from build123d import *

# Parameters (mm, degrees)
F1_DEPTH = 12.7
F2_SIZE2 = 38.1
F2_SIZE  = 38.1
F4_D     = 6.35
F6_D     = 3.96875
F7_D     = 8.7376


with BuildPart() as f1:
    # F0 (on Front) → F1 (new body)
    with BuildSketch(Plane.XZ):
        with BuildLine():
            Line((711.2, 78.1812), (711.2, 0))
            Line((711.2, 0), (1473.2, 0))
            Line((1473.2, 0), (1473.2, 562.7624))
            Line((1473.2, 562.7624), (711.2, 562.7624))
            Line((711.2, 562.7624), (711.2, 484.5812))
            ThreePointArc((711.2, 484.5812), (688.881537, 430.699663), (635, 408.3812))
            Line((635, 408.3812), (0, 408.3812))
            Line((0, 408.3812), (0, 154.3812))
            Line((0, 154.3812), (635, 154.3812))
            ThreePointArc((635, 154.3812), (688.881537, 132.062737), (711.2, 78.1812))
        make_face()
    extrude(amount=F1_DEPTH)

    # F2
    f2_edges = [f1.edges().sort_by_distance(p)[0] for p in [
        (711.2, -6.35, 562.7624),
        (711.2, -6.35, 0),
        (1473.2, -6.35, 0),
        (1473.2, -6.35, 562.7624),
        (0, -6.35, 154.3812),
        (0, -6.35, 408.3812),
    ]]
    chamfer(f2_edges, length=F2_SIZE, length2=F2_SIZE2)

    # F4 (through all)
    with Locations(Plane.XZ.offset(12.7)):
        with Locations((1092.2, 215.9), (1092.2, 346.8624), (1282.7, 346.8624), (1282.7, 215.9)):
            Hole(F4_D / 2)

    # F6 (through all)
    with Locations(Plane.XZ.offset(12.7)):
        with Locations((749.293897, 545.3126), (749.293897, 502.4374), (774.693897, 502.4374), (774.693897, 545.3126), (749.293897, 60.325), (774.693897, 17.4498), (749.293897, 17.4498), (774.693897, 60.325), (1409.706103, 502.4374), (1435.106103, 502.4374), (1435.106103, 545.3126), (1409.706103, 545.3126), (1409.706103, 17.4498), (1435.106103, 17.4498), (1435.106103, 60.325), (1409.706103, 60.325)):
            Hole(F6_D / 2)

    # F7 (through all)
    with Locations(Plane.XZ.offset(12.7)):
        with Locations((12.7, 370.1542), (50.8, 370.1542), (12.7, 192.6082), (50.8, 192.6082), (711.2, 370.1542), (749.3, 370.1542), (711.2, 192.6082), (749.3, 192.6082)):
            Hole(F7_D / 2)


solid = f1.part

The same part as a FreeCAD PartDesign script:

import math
import FreeCAD as App
import Part
import Sketcher

V = App.Vector
Q = App.Units.Quantity


def edges_at(feature, points):
    """Names of the edges that pass closest to the given points."""
    edges = feature.Shape.Edges
    near = lambda p: min(range(len(edges)), key=lambda i: edges[i].distToShape(Part.Vertex(*p))[0])
    return sorted({f"Edge{near(p) + 1}" for p in points})

doc = App.newDocument("Part")
body = doc.addObject("PartDesign::Body", "Body")

# Sketch on XZ plane
sketch1 = doc.addObject("Sketcher::SketchObject", "Sketch")
body.addObject(sketch1)
sketch1.AttachmentSupport = (doc.XZ_Plane, [""])
sketch1.MapMode = "FlatFace"
sketch1.addGeometry(Part.LineSegment(V(711.2, 78.1812, 0), V(711.2, 0, 0)), False)
sketch1.addGeometry(Part.LineSegment(V(711.2, 0, 0), V(1473.2, 0, 0)), False)
sketch1.addGeometry(Part.LineSegment(V(1473.2, 0, 0), V(1473.2, 562.7624, 0)), False)
sketch1.addGeometry(Part.LineSegment(V(1473.2, 562.7624, 0), V(711.2, 562.7624, 0)), False)
sketch1.addGeometry(Part.LineSegment(V(711.2, 562.7624, 0), V(711.2, 484.5812, 0)), False)
sketch1.addGeometry(Part.ArcOfCircle(Part.Circle(V(635.000001, 484.581199, 0), V(0, 0, 1), 76.199999), math.radians(-90.000001), math.radians(0.000001)), False)
sketch1.addGeometry(Part.LineSegment(V(635, 408.3812, 0), V(0, 408.3812, 0)), False)
sketch1.addGeometry(Part.LineSegment(V(0, 408.3812, 0), V(0, 154.3812, 0)), False)
sketch1.addGeometry(Part.LineSegment(V(0, 154.3812, 0), V(635, 154.3812, 0)), False)
sketch1.addGeometry(Part.ArcOfCircle(Part.Circle(V(635.000001, 78.181201, 0), V(0, 0, 1), 76.199999), math.radians(-0.000001), math.radians(90.000001)), False)
sketch1.addConstraint(Sketcher.Constraint("Coincident", 0, 2, 1, 1))
sketch1.addConstraint(Sketcher.Constraint("Coincident", 1, 2, 2, 1))
sketch1.addConstraint(Sketcher.Constraint("Coincident", 2, 2, 3, 1))
sketch1.addConstraint(Sketcher.Constraint("Coincident", 3, 2, 4, 1))
sketch1.addConstraint(Sketcher.Constraint("Tangent", 4, 2, 5, 2))
sketch1.addConstraint(Sketcher.Constraint("Tangent", 5, 1, 6, 1))
sketch1.addConstraint(Sketcher.Constraint("Coincident", 6, 2, 7, 1))
sketch1.addConstraint(Sketcher.Constraint("Coincident", 7, 2, 8, 1))
sketch1.addConstraint(Sketcher.Constraint("Tangent", 8, 2, 9, 2))
sketch1.addConstraint(Sketcher.Constraint("Tangent", 9, 1, 0, 1))
sketch1.addConstraint(Sketcher.Constraint("Vertical", 0))
sketch1.addConstraint(Sketcher.Constraint("Horizontal", 1))
sketch1.addConstraint(Sketcher.Constraint("Vertical", 2))
sketch1.addConstraint(Sketcher.Constraint("Horizontal", 3))
sketch1.addConstraint(Sketcher.Constraint("Vertical", 4))
sketch1.addConstraint(Sketcher.Constraint("Horizontal", 6))
sketch1.addConstraint(Sketcher.Constraint("Vertical", 7))
sketch1.addConstraint(Sketcher.Constraint("Horizontal", 8))
sketch1.addConstraint(Sketcher.Constraint("Equal", 5, 9))
sketch1.addConstraint(Sketcher.Constraint("PointOnObject", 0, 2, -1))
sketch1.addConstraint(Sketcher.Constraint("PointOnObject", 6, 2, -2))
sketch1.addConstraint(Sketcher.Constraint("Vertical", 5, 3, 9, 3))
sketch1.addConstraint(Sketcher.Constraint("Equal", 0, 4))
sketch1.addConstraint(Sketcher.Constraint("Radius", 5, Q("3 in")))
sketch1.addConstraint(Sketcher.Constraint("DistanceX", 1, 1, 1, 2, Q("30 in")))
sketch1.addConstraint(Sketcher.Constraint("DistanceX", 6, 2, 6, 1, Q("25 in")))
sketch1.addConstraint(Sketcher.Constraint("DistanceY", 7, 2, 7, 1, Q("10 in")))
sketch1.addConstraint(Sketcher.Constraint("DistanceY", 0, 2, 0, 1, Q("3.078 in")))
pad1 = doc.addObject("PartDesign::Pad", "Pad")
body.addObject(pad1)
pad1.Profile = sketch1
pad1.Length = Q("0.5 in")
doc.recompute()

chamfer = doc.addObject("PartDesign::Chamfer", "Chamfer")
body.addObject(chamfer)
chamfer.Base = (pad1, edges_at(pad1, [
    (711.2, -6.35, 562.762),
    (711.2, -6.35, 0),
    (1473.2, -6.35, 0),
    (1473.2, -6.35, 562.762),
    (0, -6.35, 154.381),
    (0, -6.35, 408.381),
]))
chamfer.ChamferType = "Two distances"
chamfer.Size = Q("1.5 in")
chamfer.Size2 = Q("1.5 in")

# Sketch on XZ plane
sketch2 = doc.addObject("Sketcher::SketchObject", "Sketch001")
body.addObject(sketch2)
sketch2.AttachmentSupport = (doc.XZ_Plane, [""])
sketch2.MapMode = "FlatFace"
sketch2.AttachmentOffset = App.Placement(V(0, 0, 0.5 * 25.4), App.Rotation())
sketch2.addGeometry(Part.Circle(V(1092.2, 215.9, 0), V(0, 0, 1), 3.175), False)
sketch2.addGeometry(Part.Circle(V(1092.2, 346.8624, 0), V(0, 0, 1), 3.175), False)
sketch2.addGeometry(Part.Circle(V(1282.7, 346.8624, 0), V(0, 0, 1), 3.175), False)
sketch2.addGeometry(Part.Circle(V(1282.7, 215.9, 0), V(0, 0, 1), 3.175), False)
sketch2.addConstraint(Sketcher.Constraint("Equal", 0, 1))
sketch2.addConstraint(Sketcher.Constraint("Equal", 1, 2))
sketch2.addConstraint(Sketcher.Constraint("Equal", 2, 3))
sketch2.addConstraint(Sketcher.Constraint("Horizontal", 1, 3, 2, 3))
sketch2.addConstraint(Sketcher.Constraint("Horizontal", 0, 3, 3, 3))
sketch2.addConstraint(Sketcher.Constraint("Vertical", 0, 3, 1, 3))
sketch2.addConstraint(Sketcher.Constraint("Vertical", 2, 3, 3, 3))
sketch2.addConstraint(Sketcher.Constraint("Diameter", 0, Q("0.25 in")))
sketch2.addConstraint(Sketcher.Constraint("DistanceX", -1, 1, 0, 3, Q("43 in")))
sketch2.addConstraint(Sketcher.Constraint("DistanceY", -1, 1, 0, 3, Q("8.5 in")))
sketch2.addConstraint(Sketcher.Constraint("DistanceX", -1, 1, 2, 3, Q("50.5 in")))
sketch2.addConstraint(Sketcher.Constraint("DistanceY", -1, 1, 1, 3, Q("13.656 in")))
doc.recompute()
hole = doc.addObject("PartDesign::Hole", "Hole")
body.addObject(hole)
hole.Profile = sketch2
hole.ThreadType = "None"
hole.Diameter = Q("0.25 in")
hole.DepthType = "ThroughAll"

# Sketch on XZ plane
sketch3 = doc.addObject("Sketcher::SketchObject", "Sketch002")
body.addObject(sketch3)
sketch3.AttachmentSupport = (doc.XZ_Plane, [""])
sketch3.MapMode = "FlatFace"
sketch3.AttachmentOffset = App.Placement(V(0, 0, 0.5 * 25.4), App.Rotation())
sketch3.addGeometry(Part.Circle(V(749.293897, 545.3126, 0), V(0, 0, 1), 1.984375), False)
sketch3.addGeometry(Part.Circle(V(749.293897, 502.4374, 0), V(0, 0, 1), 1.984375), False)
sketch3.addGeometry(Part.Circle(V(774.693897, 502.4374, 0), V(0, 0, 1), 1.984375), False)
sketch3.addGeometry(Part.Circle(V(774.693897, 545.3126, 0), V(0, 0, 1), 1.984375), False)
sketch3.addGeometry(Part.Circle(V(749.293897, 60.325, 0), V(0, 0, 1), 1.984375), False)
sketch3.addGeometry(Part.Circle(V(774.693897, 17.4498, 0), V(0, 0, 1), 1.984375), False)
sketch3.addGeometry(Part.Circle(V(749.293897, 17.4498, 0), V(0, 0, 1), 1.984375), False)
sketch3.addGeometry(Part.Circle(V(774.693897, 60.325, 0), V(0, 0, 1), 1.984375), False)
sketch3.addGeometry(Part.Circle(V(1409.706103, 502.4374, 0), V(0, 0, 1), 1.984375), False)
sketch3.addGeometry(Part.Circle(V(1435.106103, 502.4374, 0), V(0, 0, 1), 1.984375), False)
sketch3.addGeometry(Part.Circle(V(1435.106103, 545.3126, 0), V(0, 0, 1), 1.984375), False)
sketch3.addGeometry(Part.Circle(V(1409.706103, 545.3126, 0), V(0, 0, 1), 1.984375), False)
sketch3.addGeometry(Part.Circle(V(1409.706103, 17.4498, 0), V(0, 0, 1), 1.984375), False)
sketch3.addGeometry(Part.Circle(V(1435.106103, 17.4498, 0), V(0, 0, 1), 1.984375), False)
sketch3.addGeometry(Part.Circle(V(1435.106103, 60.325, 0), V(0, 0, 1), 1.984375), False)
sketch3.addGeometry(Part.Circle(V(1409.706103, 60.325, 0), V(0, 0, 1), 1.984375), False)
sketch3.addConstraint(Sketcher.Constraint("Equal", 0, 1))
sketch3.addConstraint(Sketcher.Constraint("Equal", 1, 2))
sketch3.addConstraint(Sketcher.Constraint("Equal", 2, 3))
sketch3.addConstraint(Sketcher.Constraint("Equal", 3, 4))
sketch3.addConstraint(Sketcher.Constraint("Equal", 4, 5))
sketch3.addConstraint(Sketcher.Constraint("Equal", 5, 6))
sketch3.addConstraint(Sketcher.Constraint("Equal", 6, 7))
sketch3.addConstraint(Sketcher.Constraint("Equal", 7, 8))
sketch3.addConstraint(Sketcher.Constraint("Equal", 8, 9))
sketch3.addConstraint(Sketcher.Constraint("Equal", 9, 10))
sketch3.addConstraint(Sketcher.Constraint("Equal", 10, 11))
sketch3.addConstraint(Sketcher.Constraint("Equal", 11, 12))
sketch3.addConstraint(Sketcher.Constraint("Equal", 12, 13))
sketch3.addConstraint(Sketcher.Constraint("Equal", 13, 14))
sketch3.addConstraint(Sketcher.Constraint("Equal", 14, 15))
sketch3.addConstraint(Sketcher.Constraint("Horizontal", 1, 3, 2, 3))
sketch3.addConstraint(Sketcher.Constraint("Horizontal", 0, 3, 3, 3))
sketch3.addConstraint(Sketcher.Constraint("Horizontal", 5, 3, 6, 3))
sketch3.addConstraint(Sketcher.Constraint("Horizontal", 4, 3, 7, 3))
sketch3.addConstraint(Sketcher.Constraint("Horizontal", 2, 3, 8, 3))
sketch3.addConstraint(Sketcher.Constraint("Horizontal", 8, 3, 9, 3))
sketch3.addConstraint(Sketcher.Constraint("Horizontal", 3, 3, 10, 3))
sketch3.addConstraint(Sketcher.Constraint("Horizontal", 10, 3, 11, 3))
sketch3.addConstraint(Sketcher.Constraint("Horizontal", 6, 3, 12, 3))
sketch3.addConstraint(Sketcher.Constraint("Horizontal", 12, 3, 13, 3))
sketch3.addConstraint(Sketcher.Constraint("Horizontal", 7, 3, 14, 3))
sketch3.addConstraint(Sketcher.Constraint("Horizontal", 14, 3, 15, 3))
sketch3.addConstraint(Sketcher.Constraint("Vertical", 0, 3, 1, 3))
sketch3.addConstraint(Sketcher.Constraint("Vertical", 2, 3, 3, 3))
sketch3.addConstraint(Sketcher.Constraint("Vertical", 1, 3, 4, 3))
sketch3.addConstraint(Sketcher.Constraint("Vertical", 3, 3, 5, 3))
sketch3.addConstraint(Sketcher.Constraint("Vertical", 4, 3, 6, 3))
sketch3.addConstraint(Sketcher.Constraint("Vertical", 5, 3, 7, 3))
sketch3.addConstraint(Sketcher.Constraint("Vertical", 9, 3, 10, 3))
sketch3.addConstraint(Sketcher.Constraint("Vertical", 8, 3, 11, 3))
sketch3.addConstraint(Sketcher.Constraint("Vertical", 11, 3, 12, 3))
sketch3.addConstraint(Sketcher.Constraint("Vertical", 10, 3, 13, 3))
sketch3.addConstraint(Sketcher.Constraint("Vertical", 13, 3, 14, 3))
sketch3.addConstraint(Sketcher.Constraint("Vertical", 12, 3, 15, 3))
sketch3.addConstraint(Sketcher.Constraint("Diameter", 0, Q("0.15625 in")))
sketch3.addConstraint(Sketcher.Constraint("DistanceX", 1, 3, 2, 3, Q("1 in")))
sketch3.addConstraint(Sketcher.Constraint("DistanceX", 8, 3, 9, 3, Q("1 in")))
sketch3.addConstraint(Sketcher.Constraint("DistanceY", -1, 1, 0, 3, Q("21.469 in")))
sketch3.addConstraint(Sketcher.Constraint("DistanceY", -1, 1, 1, 3, Q("19.781 in")))
sketch3.addConstraint(Sketcher.Constraint("DistanceY", -1, 1, 4, 3, Q("2.375 in")))
sketch3.addConstraint(Sketcher.Constraint("DistanceY", -1, 1, 5, 3, Q("0.687 in")))
sketch3.addConstraint(Sketcher.Constraint("DistanceX", -1, 1, 0, 3, 749.293897))
sketch3.addConstraint(Sketcher.Constraint("DistanceX", -1, 1, 8, 3, 1409.706103))
doc.recompute()
hole2 = doc.addObject("PartDesign::Hole", "Hole001")
body.addObject(hole2)
hole2.Profile = sketch3
hole2.ThreadType = "None"
hole2.Diameter = Q("0.15625 in")
hole2.DepthType = "ThroughAll"

# Sketch on XZ plane
sketch4 = doc.addObject("Sketcher::SketchObject", "Sketch003")
body.addObject(sketch4)
sketch4.AttachmentSupport = (doc.XZ_Plane, [""])
sketch4.MapMode = "FlatFace"
sketch4.AttachmentOffset = App.Placement(V(0, 0, 0.5 * 25.4), App.Rotation())
sketch4.addGeometry(Part.Circle(V(12.7, 370.1542, 0), V(0, 0, 1), 4.3688), False)
sketch4.addGeometry(Part.Circle(V(50.8, 370.1542, 0), V(0, 0, 1), 4.3688), False)
sketch4.addGeometry(Part.Circle(V(12.7, 192.6082, 0), V(0, 0, 1), 4.3688), False)
sketch4.addGeometry(Part.Circle(V(50.8, 192.6082, 0), V(0, 0, 1), 4.3688), False)
sketch4.addGeometry(Part.Circle(V(711.2, 370.1542, 0), V(0, 0, 1), 4.3688), False)
sketch4.addGeometry(Part.Circle(V(749.3, 370.1542, 0), V(0, 0, 1), 4.3688), False)
sketch4.addGeometry(Part.Circle(V(711.2, 192.6082, 0), V(0, 0, 1), 4.3688), False)
sketch4.addGeometry(Part.Circle(V(749.3, 192.6082, 0), V(0, 0, 1), 4.3688), False)
sketch4.addConstraint(Sketcher.Constraint("Equal", 0, 1))
sketch4.addConstraint(Sketcher.Constraint("Equal", 1, 2))
sketch4.addConstraint(Sketcher.Constraint("Equal", 2, 3))
sketch4.addConstraint(Sketcher.Constraint("Equal", 3, 4))
sketch4.addConstraint(Sketcher.Constraint("Equal", 4, 5))
sketch4.addConstraint(Sketcher.Constraint("Equal", 5, 6))
sketch4.addConstraint(Sketcher.Constraint("Equal", 6, 7))
sketch4.addConstraint(Sketcher.Constraint("Horizontal", 0, 3, 1, 3))
sketch4.addConstraint(Sketcher.Constraint("Horizontal", 2, 3, 3, 3))
sketch4.addConstraint(Sketcher.Constraint("Horizontal", 1, 3, 4, 3))
sketch4.addConstraint(Sketcher.Constraint("Horizontal", 4, 3, 5, 3))
sketch4.addConstraint(Sketcher.Constraint("Horizontal", 3, 3, 6, 3))
sketch4.addConstraint(Sketcher.Constraint("Horizontal", 6, 3, 7, 3))
sketch4.addConstraint(Sketcher.Constraint("Vertical", 0, 3, 2, 3))
sketch4.addConstraint(Sketcher.Constraint("Vertical", 1, 3, 3, 3))
sketch4.addConstraint(Sketcher.Constraint("Vertical", 4, 3, 6, 3))
sketch4.addConstraint(Sketcher.Constraint("Vertical", 5, 3, 7, 3))
sketch4.addConstraint(Sketcher.Constraint("Diameter", 0, Q("0.344 in")))
sketch4.addConstraint(Sketcher.Constraint("DistanceX", -1, 1, 1, 3, Q("2 in")))
sketch4.addConstraint(Sketcher.Constraint("DistanceX", -1, 1, 4, 3, Q("28 in")))
sketch4.addConstraint(Sketcher.Constraint("DistanceX", 0, 3, 5, 3, Q("29 in")))
sketch4.addConstraint(Sketcher.Constraint("DistanceX", -1, 1, 0, 3, Q("0.5 in")))
sketch4.addConstraint(Sketcher.Constraint("DistanceY", 2, 3, 0, 3, Q("6.99 in")))
sketch4.addConstraint(Sketcher.Constraint("DistanceY", -1, 1, 0, 3, Q("14.573 in")))
doc.recompute()
hole3 = doc.addObject("PartDesign::Hole", "Hole002")
body.addObject(hole3)
hole3.Profile = sketch4
hole3.ThreadType = "None"
hole3.Diameter = Q("0.344 in")
hole3.DepthType = "ThroughAll"

doc.recompute()
